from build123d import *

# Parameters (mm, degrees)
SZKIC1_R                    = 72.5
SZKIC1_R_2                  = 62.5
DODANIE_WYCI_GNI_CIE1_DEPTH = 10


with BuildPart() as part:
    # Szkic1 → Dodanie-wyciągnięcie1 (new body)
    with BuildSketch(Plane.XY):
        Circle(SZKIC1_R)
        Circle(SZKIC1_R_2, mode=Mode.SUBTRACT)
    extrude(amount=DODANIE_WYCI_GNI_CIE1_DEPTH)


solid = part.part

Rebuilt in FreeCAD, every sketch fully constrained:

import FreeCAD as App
import Part
import Sketcher
Q = App.Units.Quantity

doc = App.newDocument("Part")
params = doc.addObject("Spreadsheet::Sheet", "Params")
for row, (alias, value) in enumerate([
    ("sketch1_diameter", "145 mm"),
    ("sketch1_diameter2", "125 mm"),
    ("pad1_length", "10 mm"),
], start=1):
    params.set(f"A{row}", alias)
    params.set(f"B{row}", "=" + value)
    params.setAlias(f"B{row}", alias)

body = doc.addObject("PartDesign::Body", "Body")

# Sketch on XY plane
sketch1 = body.newObject("Sketcher::SketchObject", "Sketch")
sketch1.AttachmentSupport = (doc.getObject("XY_Plane"), [""])
sketch1.MapMode = "FlatFace"
sketch1.addGeometry(Part.Circle(App.Vector(0, 0, 0), App.Vector(0, 0, 1), 72), False)
sketch1.addGeometry(Part.Circle(App.Vector(0, 0, 0), App.Vector(0, 0, 1), 62), False)
sketch1.addConstraint(Sketcher.Constraint("Coincident", 0, 3, -1, 1))
sketch1.addConstraint(Sketcher.Constraint("Coincident", 1, 3, -1, 1))
sketch1.addConstraint(Sketcher.Constraint("Diameter", 0, Q("145 mm")))
sketch1.addConstraint(Sketcher.Constraint("Diameter", 1, Q("125 mm")))
sketch1.setExpression("Constraints[2]", "Params.sketch1_diameter")
sketch1.setExpression("Constraints[3]", "Params.sketch1_diameter2")
pad1 = body.newObject("PartDesign::Pad", "Pad")
pad1.Profile = sketch1
pad1.setExpression("Length", "Params.pad1_length")

doc.recompute()
